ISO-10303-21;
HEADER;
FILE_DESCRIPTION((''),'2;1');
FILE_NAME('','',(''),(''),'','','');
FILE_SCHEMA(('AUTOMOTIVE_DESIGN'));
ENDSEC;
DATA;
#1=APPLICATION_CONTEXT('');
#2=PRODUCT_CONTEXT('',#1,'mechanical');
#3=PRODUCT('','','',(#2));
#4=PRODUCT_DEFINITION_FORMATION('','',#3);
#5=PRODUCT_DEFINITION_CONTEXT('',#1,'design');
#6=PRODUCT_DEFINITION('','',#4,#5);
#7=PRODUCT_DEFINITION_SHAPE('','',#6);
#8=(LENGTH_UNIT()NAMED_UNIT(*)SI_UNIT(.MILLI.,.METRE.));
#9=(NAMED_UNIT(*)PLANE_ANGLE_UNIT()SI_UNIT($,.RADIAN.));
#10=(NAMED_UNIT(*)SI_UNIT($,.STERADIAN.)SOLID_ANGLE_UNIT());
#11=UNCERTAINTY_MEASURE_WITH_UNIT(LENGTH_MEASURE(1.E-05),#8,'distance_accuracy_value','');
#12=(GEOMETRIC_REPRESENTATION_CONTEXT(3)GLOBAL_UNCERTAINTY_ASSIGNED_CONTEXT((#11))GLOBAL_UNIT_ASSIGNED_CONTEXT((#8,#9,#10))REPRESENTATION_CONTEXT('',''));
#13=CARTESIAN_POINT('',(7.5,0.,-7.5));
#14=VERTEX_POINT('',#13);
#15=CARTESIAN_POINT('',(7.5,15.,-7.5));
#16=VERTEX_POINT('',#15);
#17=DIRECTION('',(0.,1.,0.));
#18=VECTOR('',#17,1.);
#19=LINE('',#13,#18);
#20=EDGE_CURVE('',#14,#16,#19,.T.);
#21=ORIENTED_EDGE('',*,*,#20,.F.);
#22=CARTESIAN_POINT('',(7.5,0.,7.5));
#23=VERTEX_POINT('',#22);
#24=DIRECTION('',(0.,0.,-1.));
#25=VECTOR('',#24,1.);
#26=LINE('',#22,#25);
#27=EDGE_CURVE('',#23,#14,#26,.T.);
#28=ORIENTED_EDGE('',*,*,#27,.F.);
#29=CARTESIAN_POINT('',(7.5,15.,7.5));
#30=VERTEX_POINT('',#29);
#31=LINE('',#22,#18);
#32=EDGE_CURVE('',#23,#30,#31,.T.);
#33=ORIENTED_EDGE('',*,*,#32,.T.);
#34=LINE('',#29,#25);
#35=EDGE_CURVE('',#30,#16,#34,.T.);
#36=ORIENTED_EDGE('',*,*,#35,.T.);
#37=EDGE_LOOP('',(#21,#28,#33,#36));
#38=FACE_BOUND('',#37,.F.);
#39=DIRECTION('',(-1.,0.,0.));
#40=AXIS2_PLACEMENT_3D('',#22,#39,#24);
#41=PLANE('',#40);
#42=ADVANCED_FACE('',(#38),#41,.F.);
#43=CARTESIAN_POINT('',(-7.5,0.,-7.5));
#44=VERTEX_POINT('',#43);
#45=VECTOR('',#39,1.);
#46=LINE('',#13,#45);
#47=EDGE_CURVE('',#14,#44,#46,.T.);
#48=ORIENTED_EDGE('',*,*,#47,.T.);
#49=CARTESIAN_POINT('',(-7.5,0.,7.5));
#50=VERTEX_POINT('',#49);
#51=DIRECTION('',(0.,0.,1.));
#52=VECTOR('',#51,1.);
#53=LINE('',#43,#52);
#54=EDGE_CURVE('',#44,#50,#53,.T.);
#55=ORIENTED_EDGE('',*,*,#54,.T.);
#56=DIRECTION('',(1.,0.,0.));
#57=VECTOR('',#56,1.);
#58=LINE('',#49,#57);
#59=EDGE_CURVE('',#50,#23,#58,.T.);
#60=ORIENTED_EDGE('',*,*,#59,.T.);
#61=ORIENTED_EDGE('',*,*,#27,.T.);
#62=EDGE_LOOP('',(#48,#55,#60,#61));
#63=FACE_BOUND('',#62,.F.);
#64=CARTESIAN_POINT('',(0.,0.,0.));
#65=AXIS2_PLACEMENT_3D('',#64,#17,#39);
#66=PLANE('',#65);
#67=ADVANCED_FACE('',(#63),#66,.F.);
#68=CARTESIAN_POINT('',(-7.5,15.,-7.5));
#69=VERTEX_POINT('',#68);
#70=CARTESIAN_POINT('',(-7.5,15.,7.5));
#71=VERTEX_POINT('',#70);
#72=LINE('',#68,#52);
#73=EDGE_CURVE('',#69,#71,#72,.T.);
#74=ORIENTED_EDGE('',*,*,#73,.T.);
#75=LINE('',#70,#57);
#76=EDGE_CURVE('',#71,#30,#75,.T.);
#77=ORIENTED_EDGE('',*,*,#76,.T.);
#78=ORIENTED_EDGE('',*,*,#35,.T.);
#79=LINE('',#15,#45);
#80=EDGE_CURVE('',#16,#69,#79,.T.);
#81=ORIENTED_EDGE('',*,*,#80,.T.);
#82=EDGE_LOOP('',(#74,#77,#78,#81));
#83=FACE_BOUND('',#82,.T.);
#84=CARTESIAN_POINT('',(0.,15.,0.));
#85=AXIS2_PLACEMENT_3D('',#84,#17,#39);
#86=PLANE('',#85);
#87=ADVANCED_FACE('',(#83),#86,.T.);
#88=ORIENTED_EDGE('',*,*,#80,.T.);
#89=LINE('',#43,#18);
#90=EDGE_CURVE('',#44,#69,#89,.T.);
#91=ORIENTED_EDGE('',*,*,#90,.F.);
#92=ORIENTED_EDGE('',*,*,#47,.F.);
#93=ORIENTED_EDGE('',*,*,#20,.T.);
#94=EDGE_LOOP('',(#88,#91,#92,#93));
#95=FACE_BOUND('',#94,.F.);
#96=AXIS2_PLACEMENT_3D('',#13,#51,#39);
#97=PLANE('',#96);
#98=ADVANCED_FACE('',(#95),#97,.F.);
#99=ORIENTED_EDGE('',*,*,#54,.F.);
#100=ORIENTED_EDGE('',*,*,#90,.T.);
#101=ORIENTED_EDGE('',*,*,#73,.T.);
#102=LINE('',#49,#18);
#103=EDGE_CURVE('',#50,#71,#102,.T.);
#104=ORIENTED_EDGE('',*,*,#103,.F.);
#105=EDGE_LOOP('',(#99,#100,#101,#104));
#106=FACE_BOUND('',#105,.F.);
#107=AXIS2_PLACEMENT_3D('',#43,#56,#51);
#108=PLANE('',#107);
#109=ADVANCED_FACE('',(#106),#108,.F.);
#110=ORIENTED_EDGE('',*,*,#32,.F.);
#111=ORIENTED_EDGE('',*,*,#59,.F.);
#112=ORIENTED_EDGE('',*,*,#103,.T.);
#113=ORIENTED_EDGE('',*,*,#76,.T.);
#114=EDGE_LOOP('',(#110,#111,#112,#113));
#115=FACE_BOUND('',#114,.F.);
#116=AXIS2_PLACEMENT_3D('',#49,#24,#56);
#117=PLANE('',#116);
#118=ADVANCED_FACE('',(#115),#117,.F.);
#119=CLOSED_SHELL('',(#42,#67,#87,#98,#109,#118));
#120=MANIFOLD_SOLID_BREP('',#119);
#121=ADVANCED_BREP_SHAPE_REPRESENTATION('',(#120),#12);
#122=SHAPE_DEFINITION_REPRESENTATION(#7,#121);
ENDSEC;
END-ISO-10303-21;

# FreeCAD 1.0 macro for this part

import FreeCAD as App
import Part
import Sketcher
from FreeCAD import Vector

doc = App.newDocument("Part")
body = doc.addObject("PartDesign::Body", "Body")

sketch1 = doc.addObject("Sketcher::SketchObject", "Sketch")
body.addObject(sketch1)
sketch1.AttachmentSupport = (doc.XZ_Plane, [""])
sketch1.MapMode = "FlatFace"
sketch1.addGeometry(Part.LineSegment(Vector(8, 8, 0), Vector(8, -8, 0)), False)
sketch1.addGeometry(Part.LineSegment(Vector(8, -8, 0), Vector(-8, -8, 0)), False)
sketch1.addGeometry(Part.LineSegment(Vector(-8, -8, 0), Vector(-8, 8, 0)), False)
sketch1.addGeometry(Part.LineSegment(Vector(-8, 8, 0), Vector(8, 8, 0)), False)
sketch1.addConstraint(Sketcher.Constraint("Coincident", 0, 2, 1, 1))
sketch1.addConstraint(Sketcher.Constraint("Coincident", 1, 2, 2, 1))
sketch1.addConstraint(Sketcher.Constraint("Coincident", 2, 2, 3, 1))
sketch1.addConstraint(Sketcher.Constraint("Coincident", 3, 2, 0, 1))
sketch1.addConstraint(Sketcher.Constraint("Vertical", 0))
sketch1.addConstraint(Sketcher.Constraint("Horizontal", 1))
sketch1.addConstraint(Sketcher.Constraint("Vertical", 2))
sketch1.addConstraint(Sketcher.Constraint("Horizontal", 3))
sketch1.addConstraint(Sketcher.Constraint("Symmetric", 0, 2, 2, 2, -1, 1))
sketch1.addConstraint(Sketcher.Constraint("Equal", 3, 0))
sketch1.addConstraint(Sketcher.Constraint("DistanceX", 1, 2, 1, 1, 15.0))
pad1 = doc.addObject("PartDesign::Pad", "Pad")
body.addObject(pad1)
pad1.Profile = sketch1
pad1.Length = 15
pad1.Reversed = True

doc.recompute()
